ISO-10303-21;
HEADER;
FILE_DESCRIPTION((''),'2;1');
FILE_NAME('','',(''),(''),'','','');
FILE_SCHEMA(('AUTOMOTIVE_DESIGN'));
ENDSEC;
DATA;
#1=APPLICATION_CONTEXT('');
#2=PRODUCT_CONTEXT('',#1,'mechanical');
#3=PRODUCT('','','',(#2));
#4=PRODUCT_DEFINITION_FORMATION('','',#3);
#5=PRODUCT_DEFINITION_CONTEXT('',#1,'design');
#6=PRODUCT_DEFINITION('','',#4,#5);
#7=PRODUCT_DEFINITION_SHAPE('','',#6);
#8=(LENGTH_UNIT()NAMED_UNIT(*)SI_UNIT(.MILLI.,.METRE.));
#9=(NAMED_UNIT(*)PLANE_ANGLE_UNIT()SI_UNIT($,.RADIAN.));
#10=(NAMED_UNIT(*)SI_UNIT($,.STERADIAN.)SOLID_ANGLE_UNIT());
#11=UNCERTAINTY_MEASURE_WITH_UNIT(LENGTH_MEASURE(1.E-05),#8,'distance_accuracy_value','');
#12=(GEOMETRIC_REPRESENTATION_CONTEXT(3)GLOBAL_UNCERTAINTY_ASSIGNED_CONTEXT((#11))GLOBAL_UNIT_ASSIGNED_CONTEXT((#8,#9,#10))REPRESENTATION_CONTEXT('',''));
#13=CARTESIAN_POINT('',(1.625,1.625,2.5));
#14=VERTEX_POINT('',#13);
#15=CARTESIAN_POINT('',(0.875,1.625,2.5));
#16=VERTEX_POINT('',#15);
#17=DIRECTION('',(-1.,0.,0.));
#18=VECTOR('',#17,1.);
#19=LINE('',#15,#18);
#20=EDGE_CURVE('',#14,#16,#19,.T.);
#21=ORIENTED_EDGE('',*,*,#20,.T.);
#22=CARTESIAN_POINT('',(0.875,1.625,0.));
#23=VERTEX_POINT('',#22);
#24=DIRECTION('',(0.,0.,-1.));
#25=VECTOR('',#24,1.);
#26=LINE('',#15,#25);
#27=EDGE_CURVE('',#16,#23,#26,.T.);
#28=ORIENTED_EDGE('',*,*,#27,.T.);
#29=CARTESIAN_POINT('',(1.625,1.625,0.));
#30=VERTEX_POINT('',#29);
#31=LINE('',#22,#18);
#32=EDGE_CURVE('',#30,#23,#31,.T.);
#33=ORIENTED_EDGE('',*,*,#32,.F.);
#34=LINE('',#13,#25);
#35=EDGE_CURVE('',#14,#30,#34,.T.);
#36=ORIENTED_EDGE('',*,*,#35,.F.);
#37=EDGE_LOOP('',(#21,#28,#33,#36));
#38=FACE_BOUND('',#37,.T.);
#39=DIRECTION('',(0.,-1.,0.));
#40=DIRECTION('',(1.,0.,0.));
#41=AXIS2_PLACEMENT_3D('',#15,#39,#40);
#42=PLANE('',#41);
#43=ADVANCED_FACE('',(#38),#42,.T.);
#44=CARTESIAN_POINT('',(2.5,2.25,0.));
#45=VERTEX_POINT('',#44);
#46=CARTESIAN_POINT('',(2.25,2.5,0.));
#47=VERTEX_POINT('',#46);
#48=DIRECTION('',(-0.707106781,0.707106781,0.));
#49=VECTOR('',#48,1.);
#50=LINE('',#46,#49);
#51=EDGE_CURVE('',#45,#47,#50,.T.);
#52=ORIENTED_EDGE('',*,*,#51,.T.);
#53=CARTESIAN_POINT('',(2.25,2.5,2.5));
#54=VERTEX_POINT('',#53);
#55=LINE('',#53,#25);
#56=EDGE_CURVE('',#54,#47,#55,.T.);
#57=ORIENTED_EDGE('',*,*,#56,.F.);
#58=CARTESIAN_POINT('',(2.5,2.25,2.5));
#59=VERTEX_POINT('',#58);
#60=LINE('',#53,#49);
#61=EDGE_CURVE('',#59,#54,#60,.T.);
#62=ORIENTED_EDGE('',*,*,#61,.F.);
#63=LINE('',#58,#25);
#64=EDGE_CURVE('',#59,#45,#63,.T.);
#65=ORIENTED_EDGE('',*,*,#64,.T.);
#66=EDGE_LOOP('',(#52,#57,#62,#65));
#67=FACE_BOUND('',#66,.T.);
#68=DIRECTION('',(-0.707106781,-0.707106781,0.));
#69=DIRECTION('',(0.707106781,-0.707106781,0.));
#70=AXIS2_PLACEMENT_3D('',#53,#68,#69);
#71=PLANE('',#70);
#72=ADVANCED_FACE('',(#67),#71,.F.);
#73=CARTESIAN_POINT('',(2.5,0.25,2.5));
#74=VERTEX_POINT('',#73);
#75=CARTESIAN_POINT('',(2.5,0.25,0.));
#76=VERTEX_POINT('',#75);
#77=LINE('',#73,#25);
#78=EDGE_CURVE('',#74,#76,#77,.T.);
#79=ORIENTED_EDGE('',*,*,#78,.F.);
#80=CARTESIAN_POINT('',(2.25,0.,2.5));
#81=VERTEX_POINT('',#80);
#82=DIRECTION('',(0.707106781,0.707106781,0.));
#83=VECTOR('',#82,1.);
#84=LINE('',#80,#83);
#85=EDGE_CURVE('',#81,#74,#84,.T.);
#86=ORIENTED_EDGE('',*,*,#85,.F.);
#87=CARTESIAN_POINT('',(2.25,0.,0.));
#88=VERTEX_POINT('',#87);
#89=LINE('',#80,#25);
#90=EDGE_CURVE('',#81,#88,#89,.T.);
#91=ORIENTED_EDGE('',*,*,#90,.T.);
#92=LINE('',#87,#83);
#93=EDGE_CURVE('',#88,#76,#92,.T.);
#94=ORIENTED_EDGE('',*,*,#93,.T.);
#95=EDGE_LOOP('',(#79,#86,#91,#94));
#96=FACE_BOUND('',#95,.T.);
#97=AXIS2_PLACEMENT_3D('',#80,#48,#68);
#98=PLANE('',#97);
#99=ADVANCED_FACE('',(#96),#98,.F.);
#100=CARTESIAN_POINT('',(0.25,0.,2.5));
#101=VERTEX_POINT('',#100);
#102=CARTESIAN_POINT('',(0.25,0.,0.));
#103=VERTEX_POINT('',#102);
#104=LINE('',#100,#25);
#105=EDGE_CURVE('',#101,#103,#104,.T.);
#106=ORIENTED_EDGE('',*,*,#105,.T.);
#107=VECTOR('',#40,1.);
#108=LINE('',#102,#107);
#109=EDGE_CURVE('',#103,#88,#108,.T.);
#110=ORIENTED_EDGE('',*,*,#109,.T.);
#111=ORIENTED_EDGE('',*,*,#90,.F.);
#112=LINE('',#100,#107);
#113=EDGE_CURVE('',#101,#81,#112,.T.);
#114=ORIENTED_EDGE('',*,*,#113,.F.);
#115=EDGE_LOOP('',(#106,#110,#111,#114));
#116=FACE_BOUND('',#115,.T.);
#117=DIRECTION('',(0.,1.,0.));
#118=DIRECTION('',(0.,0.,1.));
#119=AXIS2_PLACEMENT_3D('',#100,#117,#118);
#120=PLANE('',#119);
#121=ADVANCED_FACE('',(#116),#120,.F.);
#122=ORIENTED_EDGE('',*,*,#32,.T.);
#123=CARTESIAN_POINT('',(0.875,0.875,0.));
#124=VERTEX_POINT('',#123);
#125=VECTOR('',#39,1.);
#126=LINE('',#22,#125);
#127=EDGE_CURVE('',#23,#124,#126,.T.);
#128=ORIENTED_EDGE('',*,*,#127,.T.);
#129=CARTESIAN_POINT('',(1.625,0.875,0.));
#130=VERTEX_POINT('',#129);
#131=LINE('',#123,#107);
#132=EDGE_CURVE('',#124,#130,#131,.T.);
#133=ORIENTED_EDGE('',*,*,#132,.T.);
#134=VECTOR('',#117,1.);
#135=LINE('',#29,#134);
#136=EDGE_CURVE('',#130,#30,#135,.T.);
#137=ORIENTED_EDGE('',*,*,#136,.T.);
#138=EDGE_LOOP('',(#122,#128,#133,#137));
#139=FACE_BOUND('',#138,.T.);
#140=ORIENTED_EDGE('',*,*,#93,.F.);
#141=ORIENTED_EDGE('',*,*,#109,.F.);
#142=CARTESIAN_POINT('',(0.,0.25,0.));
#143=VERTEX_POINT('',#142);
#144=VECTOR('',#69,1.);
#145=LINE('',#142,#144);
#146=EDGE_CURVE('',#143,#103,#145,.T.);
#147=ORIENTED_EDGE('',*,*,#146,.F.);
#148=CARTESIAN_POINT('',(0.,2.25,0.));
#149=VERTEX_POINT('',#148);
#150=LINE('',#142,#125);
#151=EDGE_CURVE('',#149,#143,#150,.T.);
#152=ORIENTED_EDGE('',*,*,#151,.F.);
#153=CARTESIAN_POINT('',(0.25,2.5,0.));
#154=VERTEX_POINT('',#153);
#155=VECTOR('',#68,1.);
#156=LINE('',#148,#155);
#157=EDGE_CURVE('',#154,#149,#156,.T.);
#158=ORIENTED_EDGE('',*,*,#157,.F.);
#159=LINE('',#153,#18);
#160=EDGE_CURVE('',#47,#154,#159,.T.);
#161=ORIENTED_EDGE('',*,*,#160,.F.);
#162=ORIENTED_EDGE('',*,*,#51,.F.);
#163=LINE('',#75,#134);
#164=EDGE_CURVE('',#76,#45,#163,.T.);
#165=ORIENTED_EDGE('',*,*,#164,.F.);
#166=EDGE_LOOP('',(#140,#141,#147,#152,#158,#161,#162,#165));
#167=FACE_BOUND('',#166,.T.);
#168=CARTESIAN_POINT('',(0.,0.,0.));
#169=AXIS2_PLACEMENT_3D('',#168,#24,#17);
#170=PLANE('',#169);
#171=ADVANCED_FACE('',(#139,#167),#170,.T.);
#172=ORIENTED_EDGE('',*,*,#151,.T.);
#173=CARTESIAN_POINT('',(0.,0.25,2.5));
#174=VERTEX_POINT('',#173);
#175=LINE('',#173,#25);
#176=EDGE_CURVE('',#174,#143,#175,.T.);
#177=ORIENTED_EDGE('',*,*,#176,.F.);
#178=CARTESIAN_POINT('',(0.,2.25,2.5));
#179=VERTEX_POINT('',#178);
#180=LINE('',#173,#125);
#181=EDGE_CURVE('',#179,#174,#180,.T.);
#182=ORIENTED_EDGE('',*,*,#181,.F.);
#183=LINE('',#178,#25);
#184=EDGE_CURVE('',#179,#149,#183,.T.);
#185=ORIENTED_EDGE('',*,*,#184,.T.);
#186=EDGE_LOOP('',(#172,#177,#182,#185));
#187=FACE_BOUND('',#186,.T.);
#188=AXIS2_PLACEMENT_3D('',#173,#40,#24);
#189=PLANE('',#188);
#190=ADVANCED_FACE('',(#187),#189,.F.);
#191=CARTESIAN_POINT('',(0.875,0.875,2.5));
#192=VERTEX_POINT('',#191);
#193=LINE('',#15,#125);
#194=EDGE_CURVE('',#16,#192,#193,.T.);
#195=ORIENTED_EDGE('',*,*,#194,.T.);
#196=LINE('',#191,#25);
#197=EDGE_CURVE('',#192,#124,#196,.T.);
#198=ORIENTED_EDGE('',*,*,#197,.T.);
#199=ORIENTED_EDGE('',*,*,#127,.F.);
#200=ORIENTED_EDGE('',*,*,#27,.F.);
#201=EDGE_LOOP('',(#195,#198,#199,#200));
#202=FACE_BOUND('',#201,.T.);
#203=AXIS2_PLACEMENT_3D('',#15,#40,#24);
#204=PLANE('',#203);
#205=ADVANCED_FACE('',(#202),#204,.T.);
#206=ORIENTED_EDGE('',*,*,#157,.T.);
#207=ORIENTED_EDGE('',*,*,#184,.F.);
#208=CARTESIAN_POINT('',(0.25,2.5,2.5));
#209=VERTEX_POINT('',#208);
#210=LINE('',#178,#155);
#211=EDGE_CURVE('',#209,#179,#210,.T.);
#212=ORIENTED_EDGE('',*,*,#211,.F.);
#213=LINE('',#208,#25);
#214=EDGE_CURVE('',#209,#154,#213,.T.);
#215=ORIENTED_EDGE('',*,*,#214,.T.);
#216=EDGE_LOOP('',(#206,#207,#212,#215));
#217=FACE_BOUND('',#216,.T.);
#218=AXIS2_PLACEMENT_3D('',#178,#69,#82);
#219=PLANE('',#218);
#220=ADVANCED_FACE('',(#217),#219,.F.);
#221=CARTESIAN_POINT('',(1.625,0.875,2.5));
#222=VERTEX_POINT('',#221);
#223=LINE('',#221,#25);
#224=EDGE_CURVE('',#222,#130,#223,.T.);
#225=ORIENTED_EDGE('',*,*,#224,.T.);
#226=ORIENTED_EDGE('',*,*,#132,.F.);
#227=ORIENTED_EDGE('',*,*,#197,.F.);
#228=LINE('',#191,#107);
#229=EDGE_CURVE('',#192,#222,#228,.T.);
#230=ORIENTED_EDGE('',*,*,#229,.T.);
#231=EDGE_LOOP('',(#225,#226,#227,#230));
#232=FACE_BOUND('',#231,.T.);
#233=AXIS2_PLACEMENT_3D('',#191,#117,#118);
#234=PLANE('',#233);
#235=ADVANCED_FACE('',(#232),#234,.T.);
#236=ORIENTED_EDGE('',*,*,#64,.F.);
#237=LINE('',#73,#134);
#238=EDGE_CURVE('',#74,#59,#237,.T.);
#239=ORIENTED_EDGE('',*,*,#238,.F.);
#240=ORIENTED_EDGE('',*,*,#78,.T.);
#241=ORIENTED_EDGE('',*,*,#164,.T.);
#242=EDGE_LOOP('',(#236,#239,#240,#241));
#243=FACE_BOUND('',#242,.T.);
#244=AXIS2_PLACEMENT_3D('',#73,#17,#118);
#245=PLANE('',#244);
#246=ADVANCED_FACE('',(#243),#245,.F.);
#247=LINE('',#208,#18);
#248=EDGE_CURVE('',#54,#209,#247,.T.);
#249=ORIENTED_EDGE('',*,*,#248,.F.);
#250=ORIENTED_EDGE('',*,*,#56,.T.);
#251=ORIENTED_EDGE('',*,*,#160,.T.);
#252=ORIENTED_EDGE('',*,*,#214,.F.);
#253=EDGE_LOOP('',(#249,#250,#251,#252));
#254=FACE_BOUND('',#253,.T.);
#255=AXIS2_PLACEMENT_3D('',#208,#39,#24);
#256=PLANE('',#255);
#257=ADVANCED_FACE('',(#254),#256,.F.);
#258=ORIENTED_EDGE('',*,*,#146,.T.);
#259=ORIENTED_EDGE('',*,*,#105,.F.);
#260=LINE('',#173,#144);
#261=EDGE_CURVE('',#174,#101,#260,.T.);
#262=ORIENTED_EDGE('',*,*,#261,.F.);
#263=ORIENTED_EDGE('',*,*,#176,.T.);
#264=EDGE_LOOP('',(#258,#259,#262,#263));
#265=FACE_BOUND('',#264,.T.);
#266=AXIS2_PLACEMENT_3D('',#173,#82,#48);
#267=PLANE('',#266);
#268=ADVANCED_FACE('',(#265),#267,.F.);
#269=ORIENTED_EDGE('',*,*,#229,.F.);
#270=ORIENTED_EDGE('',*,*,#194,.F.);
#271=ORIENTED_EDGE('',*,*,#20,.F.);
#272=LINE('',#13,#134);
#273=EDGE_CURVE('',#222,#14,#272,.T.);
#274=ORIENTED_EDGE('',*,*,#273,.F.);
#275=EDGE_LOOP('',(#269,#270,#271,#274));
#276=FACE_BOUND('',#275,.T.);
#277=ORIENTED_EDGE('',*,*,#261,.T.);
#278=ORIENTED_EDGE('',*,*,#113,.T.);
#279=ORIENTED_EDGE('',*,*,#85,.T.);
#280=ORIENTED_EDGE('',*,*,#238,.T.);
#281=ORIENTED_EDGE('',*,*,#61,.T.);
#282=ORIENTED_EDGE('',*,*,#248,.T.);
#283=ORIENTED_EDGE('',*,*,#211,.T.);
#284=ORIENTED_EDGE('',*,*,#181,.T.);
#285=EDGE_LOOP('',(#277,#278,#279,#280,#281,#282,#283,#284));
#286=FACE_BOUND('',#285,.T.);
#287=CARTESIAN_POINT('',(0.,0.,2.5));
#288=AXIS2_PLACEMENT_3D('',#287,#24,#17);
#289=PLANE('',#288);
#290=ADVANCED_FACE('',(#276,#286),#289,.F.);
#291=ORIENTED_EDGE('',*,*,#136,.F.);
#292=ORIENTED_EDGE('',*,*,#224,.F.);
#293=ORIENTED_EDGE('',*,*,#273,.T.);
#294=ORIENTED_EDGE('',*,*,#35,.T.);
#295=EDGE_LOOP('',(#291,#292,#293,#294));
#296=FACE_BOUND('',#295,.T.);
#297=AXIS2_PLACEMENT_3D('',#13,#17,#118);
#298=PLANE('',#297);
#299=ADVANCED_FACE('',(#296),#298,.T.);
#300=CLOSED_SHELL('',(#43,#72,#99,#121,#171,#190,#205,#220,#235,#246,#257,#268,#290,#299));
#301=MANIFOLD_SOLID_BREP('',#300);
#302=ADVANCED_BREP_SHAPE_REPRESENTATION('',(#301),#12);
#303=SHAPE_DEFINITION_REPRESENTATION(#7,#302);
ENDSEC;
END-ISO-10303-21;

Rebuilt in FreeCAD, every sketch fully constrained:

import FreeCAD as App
import Part
import Sketcher


def add_polygon(sketch, points):
    """Adds a closed chain of lines whose ends are joined by coincident constraints."""
    first, n = sketch.GeometryCount, len(points)
    for a, b in zip(points, points[1:] + points[:1]):
        sketch.addGeometry(Part.LineSegment(App.Vector(*a, 0), App.Vector(*b, 0)), False)
    for i in range(n):
        sketch.addConstraint(Sketcher.Constraint("Coincident", first + i, 2, first + (i + 1) % n, 1))

doc = App.newDocument("Part")
body = doc.addObject("PartDesign::Body", "Body")

# Sketch on XY plane
sketch1 = body.newObject("Sketcher::SketchObject", "Sketch")
sketch1.AttachmentSupport = (doc.getObject("XY_Plane"), [""])
sketch1.MapMode = "FlatFace"
add_polygon(sketch1, [(0.25, 2.5), (0, 2.25), (0, 0.25), (0.25, 0), (2.25, 0), (2.5, 0.25), (2.5, 2.25), (2.25, 2.5)])  # lines 0-7
add_polygon(sketch1, [(0.88, 0.88), (0.88, 1.62), (1.62, 1.62), (1.62, 0.88)])  # lines 8-11
sketch1.addConstraint(Sketcher.Constraint("Vertical", 1))
sketch1.addConstraint(Sketcher.Constraint("Horizontal", 3))
sketch1.addConstraint(Sketcher.Constraint("Vertical", 5))
sketch1.addConstraint(Sketcher.Constraint("Horizontal", 7))
sketch1.addConstraint(Sketcher.Constraint("Vertical", 8))
sketch1.addConstraint(Sketcher.Constraint("Horizontal", 9))
sketch1.addConstraint(Sketcher.Constraint("Vertical", 10))
sketch1.addConstraint(Sketcher.Constraint("Horizontal", 11))
sketch1.addConstraint(Sketcher.Constraint("PointOnObject", 0, 2, -2))
sketch1.addConstraint(Sketcher.Constraint("PointOnObject", 2, 2, -1))
sketch1.addConstraint(Sketcher.Constraint("Perpendicular", 0, 2))
sketch1.addConstraint(Sketcher.Constraint("Perpendicular", 2, 4))
sketch1.addConstraint(Sketcher.Constraint("Perpendicular", 4, 6))
sketch1.addConstraint(Sketcher.Constraint("Horizontal", 1, 2, 4, 2))
sketch1.addConstraint(Sketcher.Constraint("Horizontal", 0, 2, 5, 2))
sketch1.addConstraint(Sketcher.Constraint("Vertical", 3, 2, 6, 2))
sketch1.addConstraint(Sketcher.Constraint("Vertical", 2, 2, 7, 2))
sketch1.addConstraint(Sketcher.Constraint("Equal", 7, 1))
sketch1.addConstraint(Sketcher.Constraint("Equal", 11, 8))
sketch1.addConstraint(Sketcher.Constraint("DistanceX", 3, 1, 3, 2, 2.0))
sketch1.addConstraint(Sketcher.Constraint("DistanceX", 9, 1, 9, 2, 0.75))
sketch1.addConstraint(Sketcher.Constraint("DistanceX", -1, 1, 4, 2, 2.5))
sketch1.addConstraint(Sketcher.Constraint("DistanceX", -1, 1, 8, 2, 0.875))
sketch1.addConstraint(Sketcher.Constraint("DistanceY", -1, 1, 8, 2, 1.625))
pad1 = body.newObject("PartDesign::Pad", "Pad")
pad1.Profile = sketch1
pad1.Length = 2.5

doc.recompute()
